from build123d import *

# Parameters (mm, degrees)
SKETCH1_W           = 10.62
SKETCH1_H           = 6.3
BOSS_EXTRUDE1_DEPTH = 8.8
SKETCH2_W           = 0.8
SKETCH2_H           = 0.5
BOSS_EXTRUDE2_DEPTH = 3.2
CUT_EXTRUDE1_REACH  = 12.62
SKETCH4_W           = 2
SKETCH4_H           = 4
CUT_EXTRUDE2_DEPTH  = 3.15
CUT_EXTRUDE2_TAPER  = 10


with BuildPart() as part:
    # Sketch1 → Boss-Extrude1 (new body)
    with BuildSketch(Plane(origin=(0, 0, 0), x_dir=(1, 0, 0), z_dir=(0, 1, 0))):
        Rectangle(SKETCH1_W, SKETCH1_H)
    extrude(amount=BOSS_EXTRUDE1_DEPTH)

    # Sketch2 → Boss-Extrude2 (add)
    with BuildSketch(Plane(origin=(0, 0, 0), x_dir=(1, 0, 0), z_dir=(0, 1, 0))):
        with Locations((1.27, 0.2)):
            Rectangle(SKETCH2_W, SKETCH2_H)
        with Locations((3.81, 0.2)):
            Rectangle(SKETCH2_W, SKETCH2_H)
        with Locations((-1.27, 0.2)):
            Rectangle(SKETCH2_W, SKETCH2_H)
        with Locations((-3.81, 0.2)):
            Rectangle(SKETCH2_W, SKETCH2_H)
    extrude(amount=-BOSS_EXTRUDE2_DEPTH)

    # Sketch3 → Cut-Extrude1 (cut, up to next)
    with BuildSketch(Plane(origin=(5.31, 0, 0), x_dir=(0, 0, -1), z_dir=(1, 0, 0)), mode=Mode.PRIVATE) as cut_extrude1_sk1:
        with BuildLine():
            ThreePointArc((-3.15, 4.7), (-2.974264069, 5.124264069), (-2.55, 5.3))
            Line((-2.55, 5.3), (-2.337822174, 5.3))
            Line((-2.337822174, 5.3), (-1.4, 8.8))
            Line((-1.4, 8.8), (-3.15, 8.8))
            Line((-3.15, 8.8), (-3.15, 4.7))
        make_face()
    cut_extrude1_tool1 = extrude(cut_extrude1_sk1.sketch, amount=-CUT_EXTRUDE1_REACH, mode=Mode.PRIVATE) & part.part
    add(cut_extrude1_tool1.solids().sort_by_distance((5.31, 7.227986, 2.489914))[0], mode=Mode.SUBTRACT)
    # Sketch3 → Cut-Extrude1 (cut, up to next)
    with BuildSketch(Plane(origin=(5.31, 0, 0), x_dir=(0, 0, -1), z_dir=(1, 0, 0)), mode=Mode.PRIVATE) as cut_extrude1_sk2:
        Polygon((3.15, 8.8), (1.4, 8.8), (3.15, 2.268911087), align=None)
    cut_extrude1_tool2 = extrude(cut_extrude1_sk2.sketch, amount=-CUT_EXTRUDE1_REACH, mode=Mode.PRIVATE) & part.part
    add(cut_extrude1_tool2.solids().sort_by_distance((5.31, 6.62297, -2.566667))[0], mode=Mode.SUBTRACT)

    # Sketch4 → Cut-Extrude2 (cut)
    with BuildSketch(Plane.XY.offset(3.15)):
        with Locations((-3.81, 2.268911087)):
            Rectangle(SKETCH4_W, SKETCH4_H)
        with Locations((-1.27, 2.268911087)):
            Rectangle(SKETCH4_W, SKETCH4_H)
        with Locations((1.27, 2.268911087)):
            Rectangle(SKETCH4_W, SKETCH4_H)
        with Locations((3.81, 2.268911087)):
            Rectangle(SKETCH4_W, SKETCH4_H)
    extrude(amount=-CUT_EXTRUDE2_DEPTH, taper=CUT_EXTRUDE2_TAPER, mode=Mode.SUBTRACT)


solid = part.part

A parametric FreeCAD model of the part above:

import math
import FreeCAD as App
import Part
import Sketcher

V = App.Vector
Q = App.Units.Quantity


def add_polygon(sketch, points):
    """Adds a closed chain of lines whose ends are joined by coincident constraints."""
    first, n = sketch.GeometryCount, len(points)
    for a, b in zip(points, points[1:] + points[:1]):
        sketch.addGeometry(Part.LineSegment(App.Vector(*a, 0), App.Vector(*b, 0)), False)
    for i in range(n):
        sketch.addConstraint(Sketcher.Constraint("Coincident", first + i, 2, first + (i + 1) % n, 1))

doc = App.newDocument("Part")
body = doc.addObject("PartDesign::Body", "Body")

# Sketch on XZ plane
sketch1 = doc.addObject("Sketcher::SketchObject", "Sketch")
body.addObject(sketch1)
sketch1.AttachmentSupport = (doc.XZ_Plane, [""])
sketch1.MapMode = "FlatFace"
add_polygon(sketch1, [(-5, -3), (-5, 3), (5, 3), (5, -3)])  # lines 0-3
sketch1.addConstraint([
    Sketcher.Constraint("Vertical", 0),
    Sketcher.Constraint("Horizontal", 1),
    Sketcher.Constraint("Vertical", 2),
    Sketcher.Constraint("Horizontal", 3),
    Sketcher.Constraint("Symmetric", 0, 2, 2, 2, -1, 1),
    Sketcher.Constraint("DistanceY", 0, 1, 0, 2, 6.3),
    Sketcher.Constraint("DistanceX", 1, 1, 1, 2, 10.62),
])
pad1 = doc.addObject("PartDesign::Pad", "Pad")
body.addObject(pad1)
pad1.Profile = sketch1
pad1.Length = 8.8
pad1.Reversed = True

# Sketch on XZ plane
sketch2 = doc.addObject("Sketcher::SketchObject", "Sketch001")
body.addObject(sketch2)
sketch2.AttachmentSupport = (doc.XZ_Plane, [""])
sketch2.MapMode = "FlatFace"
add_polygon(sketch2, [(0.9, -0.5), (0.9, 0.1), (1.7, 0.1), (1.7, -0.5)])  # lines 0-3
add_polygon(sketch2, [(3.4, -0.5), (3.4, 0.1), (4.2, 0.1), (4.2, -0.5)])  # lines 4-7
add_polygon(sketch2, [(-1.7, -0.5), (-1.7, 0.1), (-0.9, 0.1), (-0.9, -0.5)])  # lines 8-11
add_polygon(sketch2, [(-4.2, -0.5), (-4.2, 0.1), (-3.4, 0.1), (-3.4, -0.5)])  # lines 12-15
sketch2.addConstraint([
    Sketcher.Constraint("Vertical", 0),
    Sketcher.Constraint("Horizontal", 1),
    Sketcher.Constraint("Vertical", 2),
    Sketcher.Constraint("Horizontal", 3),
    Sketcher.Constraint("Vertical", 4),
    Sketcher.Constraint("Horizontal", 5),
    Sketcher.Constraint("Vertical", 6),
    Sketcher.Constraint("Horizontal", 7),
    Sketcher.Constraint("Vertical", 8),
    Sketcher.Constraint("Horizontal", 9),
    Sketcher.Constraint("Vertical", 10),
    Sketcher.Constraint("Horizontal", 11),
    Sketcher.Constraint("Vertical", 12),
    Sketcher.Constraint("Horizontal", 13),
    Sketcher.Constraint("Vertical", 14),
    Sketcher.Constraint("Horizontal", 15),
    Sketcher.Constraint("Symmetric", 1, 2, 8, 2, -2),
    Sketcher.Constraint("Symmetric", 3, 2, 10, 2, -2),
    Sketcher.Constraint("Symmetric", 5, 2, 12, 2, -2),
    Sketcher.Constraint("Symmetric", 7, 2, 14, 2, -2),
    Sketcher.Constraint("Horizontal", 1, 2, 4, 2),
    Sketcher.Constraint("Horizontal", 3, 2, 6, 2),
    Sketcher.Constraint("Equal", 3, 5),
    Sketcher.Constraint("DistanceX", 1, 1, 1, 2, 0.8),
    Sketcher.Constraint("DistanceY", 0, 1, 0, 2, 0.5),
    Sketcher.Constraint("DistanceX", -1, 1, 0, 2, 0.87),
    Sketcher.Constraint("DistanceY", -1, 1, 0, 2, 0.05),
    Sketcher.Constraint("DistanceX", -1, 1, 4, 2, 3.41),
])
pad2 = doc.addObject("PartDesign::Pad", "Pad001")
body.addObject(pad2)
pad2.Profile = sketch2
pad2.Length = 3.2

# Sketch on YZ plane
sketch3 = doc.addObject("Sketcher::SketchObject", "Sketch002")
body.addObject(sketch3)
sketch3.AttachmentSupport = (doc.YZ_Plane, [""])
sketch3.MapMode = "FlatFace"
sketch3.AttachmentOffset = App.Placement(V(0, 0, 5.31), App.Rotation())
sketch3.addGeometry([
    Part.ArcOfCircle(Part.Circle(V(4.7, 2.55, 0), V(0, 0, 1), 0.6), math.radians(0), math.radians(90)),  # 0
    Part.LineSegment(V(5.3, 2.55, 0), V(5.3, 2.34, 0)),  # 1
    Part.LineSegment(V(5.3, 2.34, 0), V(8.8, 1.4, 0)),  # 2
    Part.LineSegment(V(8.8, 1.4, 0), V(8.8, 3.15, 0)),  # 3
    Part.LineSegment(V(8.8, 3.15, 0), V(4.7, 3.15, 0)),  # 4
], False)
sketch3.addConstraint([
    Sketcher.Constraint("Tangent", 0, 1, 1, 1),
    Sketcher.Constraint("Coincident", 1, 2, 2, 1),
    Sketcher.Constraint("Coincident", 2, 2, 3, 1),
    Sketcher.Constraint("Coincident", 3, 2, 4, 1),
    Sketcher.Constraint("Tangent", 4, 2, 0, 2),
    Sketcher.Constraint("Vertical", 1),
    Sketcher.Constraint("Vertical", 3),
    Sketcher.Constraint("Horizontal", 4),
    Sketcher.Constraint("Radius", 0, 0.6),
    Sketcher.Constraint("Angle", 2, Q("-15 deg")),
    Sketcher.Constraint("DistanceX", 4, 2, 4, 1, 4.1),
    Sketcher.Constraint("DistanceY", 3, 1, 3, 2, 1.75),
    Sketcher.Constraint("DistanceX", -1, 1, 0, 3, 4.7),
    Sketcher.Constraint("DistanceY", -1, 1, 2, 2, 1.4),
])
pocket1 = doc.addObject("PartDesign::Pocket", "Pocket")
body.addObject(pocket1)
pocket1.Profile = sketch3
pocket1.Type = "UpToFirst"

# Sketch on YZ plane
sketch4 = doc.addObject("Sketcher::SketchObject", "Sketch003")
body.addObject(sketch4)
sketch4.AttachmentSupport = (doc.YZ_Plane, [""])
sketch4.MapMode = "FlatFace"
sketch4.AttachmentOffset = App.Placement(V(0, 0, 5.31), App.Rotation())
add_polygon(sketch4, [(8.8, -3.1), (8.8, -1.4), (2.3, -3.1)])  # lines 0-2
sketch4.addConstraint([
    Sketcher.Constraint("Vertical", 0),
    Sketcher.Constraint("Horizontal", 2),
    Sketcher.Constraint("Angle", 1, Q("-165 deg")),
    Sketcher.Constraint("DistanceY", 0, 1, 0, 2, 1.75),
    Sketcher.Constraint("DistanceX", -1, 1, 0, 2, 8.8),
    Sketcher.Constraint("DistanceY", 0, 2, -1, 1, 1.4),
])
pocket2 = doc.addObject("PartDesign::Pocket", "Pocket001")
body.addObject(pocket2)
pocket2.Profile = sketch4
pocket2.Type = "UpToFirst"

# Sketch on XY plane
sketch5 = doc.addObject("Sketcher::SketchObject", "Sketch004")
body.addObject(sketch5)
sketch5.AttachmentSupport = (doc.XY_Plane, [""])
sketch5.MapMode = "FlatFace"
sketch5.AttachmentOffset = App.Placement(V(0, 0, 3.15), App.Rotation())
add_polygon(sketch5, [(-4.8, 4.3), (-4.8, 0.3), (-2.8, 0.3), (-2.8, 4.3)])  # lines 0-3
add_polygon(sketch5, [(-2.3, 4.3), (-2.3, 0.3), (-0.3, 0.3), (-0.3, 4.3)])  # lines 4-7
add_polygon(sketch5, [(0.3, 4.3), (0.3, 0.3), (2.3, 0.3), (2.3, 4.3)])  # lines 8-11
add_polygon(sketch5, [(2.8, 4.3), (2.8, 0.3), (4.8, 0.3), (4.8, 4.3)])  # lines 12-15
sketch5.addConstraint([
    Sketcher.Constraint("Vertical", 0),
    Sketcher.Constraint("Horizontal", 1),
    Sketcher.Constraint("Vertical", 2),
    Sketcher.Constraint("Horizontal", 3),
    Sketcher.Constraint("Vertical", 4),
    Sketcher.Constraint("Horizontal", 5),
    Sketcher.Constraint("Vertical", 6),
    Sketcher.Constraint("Horizontal", 7),
    Sketcher.Constraint("Vertical", 8),
    Sketcher.Constraint("Horizontal", 9),
    Sketcher.Constraint("Vertical", 10),
    Sketcher.Constraint("Horizontal", 11),
    Sketcher.Constraint("Vertical", 12),
    Sketcher.Constraint("Horizontal", 13),
    Sketcher.Constraint("Vertical", 14),
    Sketcher.Constraint("Horizontal", 15),
    Sketcher.Constraint("Symmetric", 5, 2, 8, 2, -2),
    Sketcher.Constraint("Symmetric", 7, 2, 10, 2, -2),
    Sketcher.Constraint("Symmetric", 1, 2, 12, 2, -2),
    Sketcher.Constraint("Symmetric", 3, 2, 14, 2, -2),
    Sketcher.Constraint("Horizontal", 1, 2, 4, 2),
    Sketcher.Constraint("Horizontal", 3, 2, 6, 2),
    Sketcher.Constraint("Equal", 3, 5),
    Sketcher.Constraint("DistanceX", 1, 1, 1, 2, 2.0),
    Sketcher.Constraint("DistanceY", 0, 2, 0, 1, 4.0),
    Sketcher.Constraint("DistanceX", 0, 2, -1, 1, 4.81),
    Sketcher.Constraint("DistanceX", 4, 2, -1, 1, 2.27),
    Sketcher.Constraint("DistanceY", -1, 1, 0, 2, 0.268911),
])
pocket3 = doc.addObject("PartDesign::Pocket", "Pocket002")
body.addObject(pocket3)
pocket3.Profile = sketch5
pocket3.Length = 3.15
pocket3.TaperAngle = -10

doc.recompute()
